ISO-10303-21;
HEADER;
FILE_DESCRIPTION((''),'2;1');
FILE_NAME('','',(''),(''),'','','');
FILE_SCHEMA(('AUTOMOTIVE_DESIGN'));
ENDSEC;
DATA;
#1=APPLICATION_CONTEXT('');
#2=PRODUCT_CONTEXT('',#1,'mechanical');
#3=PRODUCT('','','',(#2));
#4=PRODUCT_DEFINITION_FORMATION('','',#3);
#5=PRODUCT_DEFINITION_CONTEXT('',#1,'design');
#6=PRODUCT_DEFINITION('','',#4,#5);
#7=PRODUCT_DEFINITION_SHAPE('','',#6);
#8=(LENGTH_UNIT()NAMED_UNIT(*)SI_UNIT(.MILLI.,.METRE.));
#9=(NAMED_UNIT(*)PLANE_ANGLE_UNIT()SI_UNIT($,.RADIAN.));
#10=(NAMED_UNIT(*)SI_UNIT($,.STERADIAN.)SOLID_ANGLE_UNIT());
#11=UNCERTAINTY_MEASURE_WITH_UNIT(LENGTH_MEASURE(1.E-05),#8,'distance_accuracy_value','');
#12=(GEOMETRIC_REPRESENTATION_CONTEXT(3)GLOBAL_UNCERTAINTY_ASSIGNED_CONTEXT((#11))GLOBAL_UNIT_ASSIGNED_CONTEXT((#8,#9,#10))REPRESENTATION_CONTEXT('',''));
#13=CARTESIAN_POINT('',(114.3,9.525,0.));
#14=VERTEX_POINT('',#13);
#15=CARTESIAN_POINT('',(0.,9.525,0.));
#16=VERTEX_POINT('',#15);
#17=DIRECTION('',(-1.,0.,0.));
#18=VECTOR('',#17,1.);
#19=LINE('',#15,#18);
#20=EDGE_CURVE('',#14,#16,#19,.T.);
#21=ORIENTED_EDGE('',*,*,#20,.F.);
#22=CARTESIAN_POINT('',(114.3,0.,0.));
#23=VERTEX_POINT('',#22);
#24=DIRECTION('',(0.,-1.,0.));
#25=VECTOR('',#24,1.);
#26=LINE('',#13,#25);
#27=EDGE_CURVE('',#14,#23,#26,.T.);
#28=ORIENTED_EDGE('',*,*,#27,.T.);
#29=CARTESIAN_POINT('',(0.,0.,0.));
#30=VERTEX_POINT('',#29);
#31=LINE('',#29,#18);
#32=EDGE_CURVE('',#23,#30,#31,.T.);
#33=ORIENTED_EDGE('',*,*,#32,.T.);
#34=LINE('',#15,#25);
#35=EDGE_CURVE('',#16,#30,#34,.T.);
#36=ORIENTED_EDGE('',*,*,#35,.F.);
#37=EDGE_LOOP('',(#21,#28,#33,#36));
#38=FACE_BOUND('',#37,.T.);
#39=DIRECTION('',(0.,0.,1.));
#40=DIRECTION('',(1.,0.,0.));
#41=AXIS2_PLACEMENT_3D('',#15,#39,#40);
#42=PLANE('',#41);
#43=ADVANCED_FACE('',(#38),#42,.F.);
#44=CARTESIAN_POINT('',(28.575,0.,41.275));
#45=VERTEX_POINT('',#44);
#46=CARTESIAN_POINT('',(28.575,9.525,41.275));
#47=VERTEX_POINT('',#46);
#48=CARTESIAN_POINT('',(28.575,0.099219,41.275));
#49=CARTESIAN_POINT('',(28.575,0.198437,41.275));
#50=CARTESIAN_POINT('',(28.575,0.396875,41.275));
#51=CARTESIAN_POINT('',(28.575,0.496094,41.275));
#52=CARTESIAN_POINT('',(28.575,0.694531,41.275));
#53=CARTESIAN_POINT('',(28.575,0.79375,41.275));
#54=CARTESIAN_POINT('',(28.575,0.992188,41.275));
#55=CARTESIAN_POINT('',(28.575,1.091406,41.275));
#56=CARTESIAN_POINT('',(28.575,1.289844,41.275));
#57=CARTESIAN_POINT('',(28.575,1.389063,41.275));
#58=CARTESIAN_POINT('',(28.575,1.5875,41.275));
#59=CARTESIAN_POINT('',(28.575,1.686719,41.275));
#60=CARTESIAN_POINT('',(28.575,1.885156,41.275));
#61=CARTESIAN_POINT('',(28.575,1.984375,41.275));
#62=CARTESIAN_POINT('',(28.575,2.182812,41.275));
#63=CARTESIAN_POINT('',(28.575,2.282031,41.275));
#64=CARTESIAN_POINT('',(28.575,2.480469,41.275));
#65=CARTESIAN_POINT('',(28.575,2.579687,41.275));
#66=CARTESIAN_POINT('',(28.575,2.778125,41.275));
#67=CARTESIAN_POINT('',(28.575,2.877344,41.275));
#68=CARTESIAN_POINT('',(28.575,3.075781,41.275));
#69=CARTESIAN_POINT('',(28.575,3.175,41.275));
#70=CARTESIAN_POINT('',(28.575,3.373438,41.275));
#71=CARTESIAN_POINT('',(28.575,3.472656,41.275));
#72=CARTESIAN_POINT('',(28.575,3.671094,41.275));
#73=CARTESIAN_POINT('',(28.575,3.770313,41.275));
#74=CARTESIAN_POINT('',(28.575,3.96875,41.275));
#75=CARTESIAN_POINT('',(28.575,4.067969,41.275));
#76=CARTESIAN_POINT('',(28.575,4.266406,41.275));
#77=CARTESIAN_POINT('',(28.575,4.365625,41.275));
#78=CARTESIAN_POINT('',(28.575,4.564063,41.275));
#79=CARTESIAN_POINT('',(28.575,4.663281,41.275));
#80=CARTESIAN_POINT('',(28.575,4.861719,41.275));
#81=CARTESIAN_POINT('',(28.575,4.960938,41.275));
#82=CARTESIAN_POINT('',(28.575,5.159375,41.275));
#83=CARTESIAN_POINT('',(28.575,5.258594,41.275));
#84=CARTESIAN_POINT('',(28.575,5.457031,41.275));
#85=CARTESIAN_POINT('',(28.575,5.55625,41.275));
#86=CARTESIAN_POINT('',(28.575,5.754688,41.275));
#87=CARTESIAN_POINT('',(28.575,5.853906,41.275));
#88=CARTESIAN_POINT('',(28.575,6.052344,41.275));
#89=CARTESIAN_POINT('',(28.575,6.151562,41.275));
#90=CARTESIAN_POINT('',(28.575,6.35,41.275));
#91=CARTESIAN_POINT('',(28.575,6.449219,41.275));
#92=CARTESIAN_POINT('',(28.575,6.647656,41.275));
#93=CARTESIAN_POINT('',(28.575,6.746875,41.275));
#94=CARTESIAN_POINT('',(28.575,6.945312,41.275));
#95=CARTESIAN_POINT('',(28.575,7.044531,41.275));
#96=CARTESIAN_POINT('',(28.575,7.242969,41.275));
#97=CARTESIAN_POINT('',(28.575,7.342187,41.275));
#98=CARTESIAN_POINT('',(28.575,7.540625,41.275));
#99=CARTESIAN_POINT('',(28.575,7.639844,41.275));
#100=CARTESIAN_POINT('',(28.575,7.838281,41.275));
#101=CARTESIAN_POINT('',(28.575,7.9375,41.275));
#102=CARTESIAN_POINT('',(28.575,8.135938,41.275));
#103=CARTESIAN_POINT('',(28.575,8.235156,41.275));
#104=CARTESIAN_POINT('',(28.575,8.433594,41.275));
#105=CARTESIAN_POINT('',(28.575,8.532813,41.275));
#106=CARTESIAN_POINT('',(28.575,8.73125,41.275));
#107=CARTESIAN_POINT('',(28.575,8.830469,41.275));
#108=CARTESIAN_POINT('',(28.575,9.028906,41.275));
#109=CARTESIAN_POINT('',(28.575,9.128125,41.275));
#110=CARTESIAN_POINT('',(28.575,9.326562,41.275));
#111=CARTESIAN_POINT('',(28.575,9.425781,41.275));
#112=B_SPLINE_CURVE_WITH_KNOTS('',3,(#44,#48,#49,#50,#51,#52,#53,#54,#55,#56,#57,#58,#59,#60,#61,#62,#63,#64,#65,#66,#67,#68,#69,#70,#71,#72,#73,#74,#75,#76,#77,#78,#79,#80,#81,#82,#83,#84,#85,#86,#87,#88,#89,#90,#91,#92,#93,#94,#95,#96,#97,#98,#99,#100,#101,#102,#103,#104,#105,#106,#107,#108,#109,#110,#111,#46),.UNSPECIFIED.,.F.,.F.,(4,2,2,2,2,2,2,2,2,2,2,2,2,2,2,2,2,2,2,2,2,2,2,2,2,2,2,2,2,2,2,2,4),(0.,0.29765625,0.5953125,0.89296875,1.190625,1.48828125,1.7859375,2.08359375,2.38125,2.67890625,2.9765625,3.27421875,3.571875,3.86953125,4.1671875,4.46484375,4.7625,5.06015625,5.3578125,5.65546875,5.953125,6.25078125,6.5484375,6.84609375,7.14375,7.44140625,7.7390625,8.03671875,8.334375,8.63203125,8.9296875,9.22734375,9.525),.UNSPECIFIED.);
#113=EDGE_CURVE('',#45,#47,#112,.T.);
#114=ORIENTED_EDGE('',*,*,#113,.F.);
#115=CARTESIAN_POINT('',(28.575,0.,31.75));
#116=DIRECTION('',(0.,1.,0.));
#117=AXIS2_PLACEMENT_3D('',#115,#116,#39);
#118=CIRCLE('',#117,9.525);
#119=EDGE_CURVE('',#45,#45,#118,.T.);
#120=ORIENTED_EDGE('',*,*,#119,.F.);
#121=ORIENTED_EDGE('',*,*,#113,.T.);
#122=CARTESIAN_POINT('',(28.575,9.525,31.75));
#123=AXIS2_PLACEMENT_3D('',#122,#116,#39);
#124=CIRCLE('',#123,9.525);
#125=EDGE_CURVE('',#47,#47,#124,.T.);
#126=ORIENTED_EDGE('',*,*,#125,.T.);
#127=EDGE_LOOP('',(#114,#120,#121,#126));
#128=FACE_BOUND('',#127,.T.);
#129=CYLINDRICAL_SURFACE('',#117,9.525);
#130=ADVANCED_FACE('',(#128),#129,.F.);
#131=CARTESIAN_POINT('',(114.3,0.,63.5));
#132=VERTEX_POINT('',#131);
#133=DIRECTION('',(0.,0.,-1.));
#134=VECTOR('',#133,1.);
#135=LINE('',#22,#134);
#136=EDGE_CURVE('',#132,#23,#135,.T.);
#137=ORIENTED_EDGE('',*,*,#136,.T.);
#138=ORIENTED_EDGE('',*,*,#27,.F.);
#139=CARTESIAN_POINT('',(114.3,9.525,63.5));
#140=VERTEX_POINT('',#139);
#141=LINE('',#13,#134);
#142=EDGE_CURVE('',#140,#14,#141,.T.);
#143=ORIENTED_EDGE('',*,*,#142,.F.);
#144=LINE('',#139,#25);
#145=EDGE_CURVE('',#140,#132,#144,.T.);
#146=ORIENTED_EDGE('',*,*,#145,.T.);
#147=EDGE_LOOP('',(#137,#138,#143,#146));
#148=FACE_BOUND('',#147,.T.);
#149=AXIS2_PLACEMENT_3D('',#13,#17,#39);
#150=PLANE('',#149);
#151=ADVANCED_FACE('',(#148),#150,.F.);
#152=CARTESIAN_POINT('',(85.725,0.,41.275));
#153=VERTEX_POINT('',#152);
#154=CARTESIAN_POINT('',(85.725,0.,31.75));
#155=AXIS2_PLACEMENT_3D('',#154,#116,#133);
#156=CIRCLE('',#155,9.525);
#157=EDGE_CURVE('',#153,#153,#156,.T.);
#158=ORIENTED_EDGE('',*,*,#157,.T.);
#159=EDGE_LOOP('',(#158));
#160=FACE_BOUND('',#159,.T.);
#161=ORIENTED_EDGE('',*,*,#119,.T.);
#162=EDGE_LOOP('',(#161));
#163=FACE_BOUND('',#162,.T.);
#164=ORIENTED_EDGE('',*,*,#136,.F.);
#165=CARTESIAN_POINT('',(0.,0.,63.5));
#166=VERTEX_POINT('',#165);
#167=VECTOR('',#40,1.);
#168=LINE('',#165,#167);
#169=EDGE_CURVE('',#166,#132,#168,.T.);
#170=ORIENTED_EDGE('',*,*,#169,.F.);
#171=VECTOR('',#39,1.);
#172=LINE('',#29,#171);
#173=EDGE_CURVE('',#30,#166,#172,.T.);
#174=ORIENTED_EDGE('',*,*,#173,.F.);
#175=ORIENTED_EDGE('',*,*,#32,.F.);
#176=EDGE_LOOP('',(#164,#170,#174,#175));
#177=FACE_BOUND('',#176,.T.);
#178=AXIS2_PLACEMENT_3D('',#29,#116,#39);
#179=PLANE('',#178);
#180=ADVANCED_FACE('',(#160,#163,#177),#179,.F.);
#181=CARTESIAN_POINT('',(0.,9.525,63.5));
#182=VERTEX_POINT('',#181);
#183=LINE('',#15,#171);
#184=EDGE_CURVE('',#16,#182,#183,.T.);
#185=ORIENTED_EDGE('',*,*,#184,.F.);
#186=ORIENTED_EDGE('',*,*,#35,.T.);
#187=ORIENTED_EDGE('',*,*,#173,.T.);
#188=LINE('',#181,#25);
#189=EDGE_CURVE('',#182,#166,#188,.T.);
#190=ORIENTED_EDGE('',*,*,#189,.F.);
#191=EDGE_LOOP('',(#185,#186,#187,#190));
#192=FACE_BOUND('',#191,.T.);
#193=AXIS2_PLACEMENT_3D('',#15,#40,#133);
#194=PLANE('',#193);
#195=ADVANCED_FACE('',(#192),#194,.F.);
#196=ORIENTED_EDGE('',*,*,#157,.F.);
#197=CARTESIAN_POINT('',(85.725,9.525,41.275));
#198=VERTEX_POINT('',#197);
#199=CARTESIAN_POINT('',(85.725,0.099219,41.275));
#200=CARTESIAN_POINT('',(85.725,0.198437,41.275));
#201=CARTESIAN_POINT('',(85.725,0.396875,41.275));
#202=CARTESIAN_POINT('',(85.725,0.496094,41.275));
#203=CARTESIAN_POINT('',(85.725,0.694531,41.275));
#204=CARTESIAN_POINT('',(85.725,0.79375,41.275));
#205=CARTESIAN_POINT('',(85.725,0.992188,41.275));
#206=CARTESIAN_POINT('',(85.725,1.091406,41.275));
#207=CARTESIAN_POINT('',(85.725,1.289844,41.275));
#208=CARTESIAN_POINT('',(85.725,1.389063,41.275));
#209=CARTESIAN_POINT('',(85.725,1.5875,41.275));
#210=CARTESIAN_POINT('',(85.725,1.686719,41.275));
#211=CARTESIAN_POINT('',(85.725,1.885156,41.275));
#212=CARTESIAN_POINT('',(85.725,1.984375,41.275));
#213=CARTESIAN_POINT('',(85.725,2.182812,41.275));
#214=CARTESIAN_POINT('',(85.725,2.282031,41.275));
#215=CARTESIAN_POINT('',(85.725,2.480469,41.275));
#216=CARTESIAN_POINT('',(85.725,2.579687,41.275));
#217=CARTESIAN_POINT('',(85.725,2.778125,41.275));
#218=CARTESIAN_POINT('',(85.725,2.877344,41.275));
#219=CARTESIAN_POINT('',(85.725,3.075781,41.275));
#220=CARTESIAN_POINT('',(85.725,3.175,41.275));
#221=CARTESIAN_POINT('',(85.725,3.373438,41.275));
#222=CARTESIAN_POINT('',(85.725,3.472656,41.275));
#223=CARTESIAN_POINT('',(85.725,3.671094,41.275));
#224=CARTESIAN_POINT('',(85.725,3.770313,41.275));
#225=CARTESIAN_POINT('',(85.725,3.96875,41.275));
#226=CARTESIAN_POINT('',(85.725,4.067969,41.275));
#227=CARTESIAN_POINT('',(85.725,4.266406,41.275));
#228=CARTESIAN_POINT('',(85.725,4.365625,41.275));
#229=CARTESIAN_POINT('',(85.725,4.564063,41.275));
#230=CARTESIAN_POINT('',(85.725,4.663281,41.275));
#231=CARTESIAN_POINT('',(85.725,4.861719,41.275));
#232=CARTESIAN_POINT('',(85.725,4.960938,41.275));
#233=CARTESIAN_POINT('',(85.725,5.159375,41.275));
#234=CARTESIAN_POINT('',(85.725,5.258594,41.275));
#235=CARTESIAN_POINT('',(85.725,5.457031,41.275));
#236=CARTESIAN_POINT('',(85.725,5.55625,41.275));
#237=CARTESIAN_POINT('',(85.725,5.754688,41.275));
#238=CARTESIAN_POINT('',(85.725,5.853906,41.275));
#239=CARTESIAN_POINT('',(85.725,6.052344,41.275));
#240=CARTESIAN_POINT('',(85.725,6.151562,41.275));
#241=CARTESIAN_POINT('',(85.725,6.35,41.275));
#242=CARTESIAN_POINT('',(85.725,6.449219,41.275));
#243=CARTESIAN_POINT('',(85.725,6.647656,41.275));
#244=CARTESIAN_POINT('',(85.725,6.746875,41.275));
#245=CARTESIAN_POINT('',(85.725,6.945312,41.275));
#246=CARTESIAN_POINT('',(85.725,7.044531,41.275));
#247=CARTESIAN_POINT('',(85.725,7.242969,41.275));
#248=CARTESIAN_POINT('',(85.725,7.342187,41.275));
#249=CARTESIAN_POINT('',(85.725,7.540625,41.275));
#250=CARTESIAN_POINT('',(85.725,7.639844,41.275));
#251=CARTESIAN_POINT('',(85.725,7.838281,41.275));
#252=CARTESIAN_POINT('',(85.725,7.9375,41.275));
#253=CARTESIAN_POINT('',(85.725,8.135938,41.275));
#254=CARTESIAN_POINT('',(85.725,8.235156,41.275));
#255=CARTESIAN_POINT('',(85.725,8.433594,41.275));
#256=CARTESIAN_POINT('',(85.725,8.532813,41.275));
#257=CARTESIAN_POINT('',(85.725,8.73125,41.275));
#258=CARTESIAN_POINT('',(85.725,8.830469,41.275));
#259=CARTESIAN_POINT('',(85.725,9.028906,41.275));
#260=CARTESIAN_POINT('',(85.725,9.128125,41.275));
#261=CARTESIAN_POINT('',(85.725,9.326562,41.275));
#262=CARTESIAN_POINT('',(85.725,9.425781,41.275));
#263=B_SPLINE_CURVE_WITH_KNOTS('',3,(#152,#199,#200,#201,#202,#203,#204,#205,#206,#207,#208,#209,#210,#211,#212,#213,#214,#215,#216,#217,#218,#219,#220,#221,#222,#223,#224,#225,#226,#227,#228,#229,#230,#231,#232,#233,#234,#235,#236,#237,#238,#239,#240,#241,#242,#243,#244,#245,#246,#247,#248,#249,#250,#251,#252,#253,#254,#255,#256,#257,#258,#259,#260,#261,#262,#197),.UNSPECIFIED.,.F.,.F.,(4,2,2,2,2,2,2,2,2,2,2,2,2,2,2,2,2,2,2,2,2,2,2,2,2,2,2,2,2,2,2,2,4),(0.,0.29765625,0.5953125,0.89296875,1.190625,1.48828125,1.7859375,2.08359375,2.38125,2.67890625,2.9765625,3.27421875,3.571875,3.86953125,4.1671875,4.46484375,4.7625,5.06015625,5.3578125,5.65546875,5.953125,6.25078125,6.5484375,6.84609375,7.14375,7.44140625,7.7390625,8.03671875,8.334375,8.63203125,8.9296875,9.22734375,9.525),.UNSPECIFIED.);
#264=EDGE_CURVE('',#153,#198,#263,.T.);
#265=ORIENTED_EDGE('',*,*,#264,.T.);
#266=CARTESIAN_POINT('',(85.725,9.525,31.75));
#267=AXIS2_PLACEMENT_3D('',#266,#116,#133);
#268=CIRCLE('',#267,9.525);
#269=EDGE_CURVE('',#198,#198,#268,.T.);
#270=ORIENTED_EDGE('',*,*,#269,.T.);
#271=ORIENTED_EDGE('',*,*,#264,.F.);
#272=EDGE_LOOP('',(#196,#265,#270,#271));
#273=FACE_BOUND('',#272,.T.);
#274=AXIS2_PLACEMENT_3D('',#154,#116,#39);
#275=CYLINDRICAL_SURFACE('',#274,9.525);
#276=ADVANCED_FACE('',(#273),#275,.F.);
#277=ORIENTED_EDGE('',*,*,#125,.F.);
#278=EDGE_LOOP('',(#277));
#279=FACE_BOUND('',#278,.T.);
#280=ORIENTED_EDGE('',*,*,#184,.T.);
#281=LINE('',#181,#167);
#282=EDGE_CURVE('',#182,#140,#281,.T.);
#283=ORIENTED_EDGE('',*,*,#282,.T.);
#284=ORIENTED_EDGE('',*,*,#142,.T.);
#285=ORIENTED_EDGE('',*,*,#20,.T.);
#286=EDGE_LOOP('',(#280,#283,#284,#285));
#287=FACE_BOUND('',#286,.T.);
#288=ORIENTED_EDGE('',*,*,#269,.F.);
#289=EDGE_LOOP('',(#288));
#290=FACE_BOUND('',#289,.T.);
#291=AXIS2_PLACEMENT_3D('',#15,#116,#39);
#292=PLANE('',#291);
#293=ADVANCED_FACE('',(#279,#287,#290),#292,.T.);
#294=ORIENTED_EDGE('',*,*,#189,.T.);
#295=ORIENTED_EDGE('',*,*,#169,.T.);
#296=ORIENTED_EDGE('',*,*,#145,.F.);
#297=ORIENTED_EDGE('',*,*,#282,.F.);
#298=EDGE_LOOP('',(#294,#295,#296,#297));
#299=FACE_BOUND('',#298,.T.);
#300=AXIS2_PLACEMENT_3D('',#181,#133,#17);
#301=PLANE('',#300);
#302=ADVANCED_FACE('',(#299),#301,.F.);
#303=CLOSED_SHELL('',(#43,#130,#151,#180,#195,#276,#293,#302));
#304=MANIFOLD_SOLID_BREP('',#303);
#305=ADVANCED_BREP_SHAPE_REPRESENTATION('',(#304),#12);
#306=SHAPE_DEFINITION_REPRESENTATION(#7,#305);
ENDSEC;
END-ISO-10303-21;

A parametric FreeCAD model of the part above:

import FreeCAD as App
import Part
import Sketcher
from FreeCAD import Vector
Q = App.Units.Quantity

doc = App.newDocument("Part")
body = doc.addObject("PartDesign::Body", "Body")

sketch1 = body.newObject("Sketcher::SketchObject", "Sketch")
sketch1.AttachmentSupport = (doc.getObject("XZ_Plane"), [""])
sketch1.MapMode = "FlatFace"
sketch1.addGeometry(Part.LineSegment(Vector(0, 0, 0), Vector(0, 64, 0)), False)
sketch1.addGeometry(Part.LineSegment(Vector(0, 64, 0), Vector(114, 64, 0)), False)
sketch1.addGeometry(Part.LineSegment(Vector(114, 64, 0), Vector(114, 0, 0)), False)
sketch1.addGeometry(Part.LineSegment(Vector(114, 0, 0), Vector(0, 0, 0)), False)
sketch1.addConstraint(Sketcher.Constraint("Coincident", 0, 2, 1, 1))
sketch1.addConstraint(Sketcher.Constraint("Coincident", 1, 2, 2, 1))
sketch1.addConstraint(Sketcher.Constraint("Coincident", 2, 2, 3, 1))
sketch1.addConstraint(Sketcher.Constraint("Coincident", 3, 2, 0, 1))
sketch1.addConstraint(Sketcher.Constraint("Vertical", 0))
sketch1.addConstraint(Sketcher.Constraint("Horizontal", 1))
sketch1.addConstraint(Sketcher.Constraint("Vertical", 2))
sketch1.addConstraint(Sketcher.Constraint("Horizontal", 3))
sketch1.addConstraint(Sketcher.Constraint("Coincident", 3, 2, -1, 1))
sketch1.addConstraint(Sketcher.Constraint("DistanceX", 1, 1, 1, 2, Q("4.5 in")))
sketch1.addConstraint(Sketcher.Constraint("DistanceY", 0, 1, 0, 2, Q("2.5 in")))
pad1 = body.newObject("PartDesign::Pad", "Pad")
pad1.Profile = sketch1
pad1.Length = Q("0.375 in")
pad1.Reversed = True

sketch2 = body.newObject("Sketcher::SketchObject", "Sketch001")
sketch2.AttachmentSupport = (doc.getObject("XZ_Plane"), [""])
sketch2.MapMode = "FlatFace"
sketch2.AttachmentOffset = App.Placement(Vector(0, 0, -0.375 * 25.4), App.Rotation())
sketch2.addGeometry(Part.Circle(Vector(29, 32, 0), Vector(0, 0, 1), 10), False)
sketch2.addGeometry(Part.Circle(Vector(86, 32, 0), Vector(0, 0, 1), 10), False)
sketch2.addConstraint(Sketcher.Constraint("Equal", 0, 1))
sketch2.addConstraint(Sketcher.Constraint("Horizontal", 0, 3, 1, 3))
sketch2.addConstraint(Sketcher.Constraint("Diameter", 0, Q("0.75 in")))
sketch2.addConstraint(Sketcher.Constraint("DistanceY", -1, 1, 0, 3, Q("1.25 in")))
sketch2.addConstraint(Sketcher.Constraint("DistanceX", 0, 3, 1, 3, Q("2.25 in")))
sketch2.addConstraint(Sketcher.Constraint("DistanceX", -1, 1, 0, 3, Q("1.125 in")))
pocket1 = body.newObject("PartDesign::Pocket", "Pocket")
pocket1.Profile = sketch2
pocket1.Length = Q("0.375 in")
pocket1.Reversed = True

doc.recompute()
